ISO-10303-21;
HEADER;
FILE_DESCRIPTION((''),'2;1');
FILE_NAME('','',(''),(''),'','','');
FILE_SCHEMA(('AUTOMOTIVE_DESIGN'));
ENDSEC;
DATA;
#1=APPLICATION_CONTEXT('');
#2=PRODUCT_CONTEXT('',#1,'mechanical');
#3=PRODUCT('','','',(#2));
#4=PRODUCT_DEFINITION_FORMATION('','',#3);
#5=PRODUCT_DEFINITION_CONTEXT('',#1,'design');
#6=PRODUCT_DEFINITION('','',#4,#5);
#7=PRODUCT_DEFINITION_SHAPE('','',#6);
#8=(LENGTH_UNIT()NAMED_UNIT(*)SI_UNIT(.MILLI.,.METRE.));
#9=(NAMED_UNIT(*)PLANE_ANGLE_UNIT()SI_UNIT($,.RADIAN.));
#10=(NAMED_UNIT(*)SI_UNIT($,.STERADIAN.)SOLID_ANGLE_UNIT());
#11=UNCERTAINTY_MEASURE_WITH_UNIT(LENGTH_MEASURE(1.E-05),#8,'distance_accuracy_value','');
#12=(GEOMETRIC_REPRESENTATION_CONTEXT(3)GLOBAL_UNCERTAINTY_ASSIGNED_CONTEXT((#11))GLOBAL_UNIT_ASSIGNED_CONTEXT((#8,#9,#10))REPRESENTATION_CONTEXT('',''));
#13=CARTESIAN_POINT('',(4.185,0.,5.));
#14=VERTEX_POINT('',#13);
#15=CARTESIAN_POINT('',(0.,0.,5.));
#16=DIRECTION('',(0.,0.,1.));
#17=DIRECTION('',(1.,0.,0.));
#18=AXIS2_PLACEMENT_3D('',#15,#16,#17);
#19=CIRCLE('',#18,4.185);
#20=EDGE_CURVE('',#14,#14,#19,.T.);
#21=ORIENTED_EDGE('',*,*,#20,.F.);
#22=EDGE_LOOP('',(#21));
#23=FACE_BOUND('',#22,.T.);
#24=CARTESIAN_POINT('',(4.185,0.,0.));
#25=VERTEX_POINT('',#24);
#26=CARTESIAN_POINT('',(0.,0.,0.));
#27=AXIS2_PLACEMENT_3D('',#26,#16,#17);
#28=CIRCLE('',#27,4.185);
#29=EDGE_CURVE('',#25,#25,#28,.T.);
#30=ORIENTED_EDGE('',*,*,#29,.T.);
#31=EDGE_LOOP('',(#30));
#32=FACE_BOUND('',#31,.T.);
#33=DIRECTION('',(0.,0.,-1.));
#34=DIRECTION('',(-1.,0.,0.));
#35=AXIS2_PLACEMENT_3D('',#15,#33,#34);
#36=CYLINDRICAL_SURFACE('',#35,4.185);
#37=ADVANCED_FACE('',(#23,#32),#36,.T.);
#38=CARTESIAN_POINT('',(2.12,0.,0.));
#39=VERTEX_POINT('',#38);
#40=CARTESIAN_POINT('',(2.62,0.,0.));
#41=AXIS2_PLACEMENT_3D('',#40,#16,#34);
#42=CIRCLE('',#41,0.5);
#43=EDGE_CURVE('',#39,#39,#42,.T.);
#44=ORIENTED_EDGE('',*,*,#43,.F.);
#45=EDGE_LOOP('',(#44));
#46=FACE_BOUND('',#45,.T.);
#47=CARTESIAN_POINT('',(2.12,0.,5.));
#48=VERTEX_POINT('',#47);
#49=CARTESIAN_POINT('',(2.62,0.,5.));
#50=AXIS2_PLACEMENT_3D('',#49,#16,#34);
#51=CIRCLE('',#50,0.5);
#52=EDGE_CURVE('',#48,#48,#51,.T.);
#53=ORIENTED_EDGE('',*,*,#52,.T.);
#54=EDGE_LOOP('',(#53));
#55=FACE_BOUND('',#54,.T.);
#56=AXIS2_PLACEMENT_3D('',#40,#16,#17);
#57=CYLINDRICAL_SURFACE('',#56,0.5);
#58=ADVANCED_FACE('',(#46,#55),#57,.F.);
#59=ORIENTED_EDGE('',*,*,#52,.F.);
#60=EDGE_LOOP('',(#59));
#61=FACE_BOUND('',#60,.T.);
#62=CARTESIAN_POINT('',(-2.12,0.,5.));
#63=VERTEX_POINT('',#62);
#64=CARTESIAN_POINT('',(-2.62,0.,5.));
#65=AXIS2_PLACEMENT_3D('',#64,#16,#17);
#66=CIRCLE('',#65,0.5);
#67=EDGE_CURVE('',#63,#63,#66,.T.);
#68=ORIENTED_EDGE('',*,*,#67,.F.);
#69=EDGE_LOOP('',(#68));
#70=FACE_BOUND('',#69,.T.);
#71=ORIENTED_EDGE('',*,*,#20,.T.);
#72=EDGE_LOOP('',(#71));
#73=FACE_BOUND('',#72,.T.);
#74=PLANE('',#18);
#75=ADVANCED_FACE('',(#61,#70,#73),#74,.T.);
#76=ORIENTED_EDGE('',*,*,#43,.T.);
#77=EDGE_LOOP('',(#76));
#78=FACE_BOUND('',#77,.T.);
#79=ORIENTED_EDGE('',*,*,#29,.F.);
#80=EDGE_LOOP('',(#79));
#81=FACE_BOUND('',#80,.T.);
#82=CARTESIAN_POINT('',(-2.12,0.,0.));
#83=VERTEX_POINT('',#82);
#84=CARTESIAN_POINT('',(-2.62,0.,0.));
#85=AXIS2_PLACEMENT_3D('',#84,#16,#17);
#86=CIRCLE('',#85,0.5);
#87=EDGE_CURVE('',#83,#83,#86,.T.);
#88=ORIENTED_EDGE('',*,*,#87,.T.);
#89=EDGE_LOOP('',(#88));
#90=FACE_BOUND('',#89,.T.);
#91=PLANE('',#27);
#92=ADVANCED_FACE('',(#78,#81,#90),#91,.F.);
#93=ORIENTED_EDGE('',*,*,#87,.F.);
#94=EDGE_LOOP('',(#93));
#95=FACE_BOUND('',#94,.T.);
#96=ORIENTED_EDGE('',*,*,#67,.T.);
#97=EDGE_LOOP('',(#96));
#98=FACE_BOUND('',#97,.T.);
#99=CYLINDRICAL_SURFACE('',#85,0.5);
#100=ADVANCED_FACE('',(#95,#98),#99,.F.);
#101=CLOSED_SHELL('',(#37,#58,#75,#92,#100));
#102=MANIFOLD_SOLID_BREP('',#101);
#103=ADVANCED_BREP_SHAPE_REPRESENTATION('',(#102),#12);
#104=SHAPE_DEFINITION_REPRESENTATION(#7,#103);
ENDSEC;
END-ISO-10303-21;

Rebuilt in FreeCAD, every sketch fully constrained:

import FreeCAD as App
import Part
import Sketcher

V = App.Vector

doc = App.newDocument("Part")
params = doc.addObject("Spreadsheet::Sheet", "Params")
for row, (alias, value) in enumerate([
    ("sketch1_diameter", "8.37 mm"),
    ("pad1_length", "5 mm"),
    ("sketch2_diameter", "1 mm"),
], start=1):
    params.set(f"A{row}", alias)
    params.set(f"B{row}", "=" + value)
    params.setAlias(f"B{row}", alias)

body = doc.addObject("PartDesign::Body", "Body")

sketch1 = doc.addObject("Sketcher::SketchObject", "Sketch")
body.addObject(sketch1)
sketch1.AttachmentSupport = (doc.XY_Plane, [""])
sketch1.MapMode = "FlatFace"
sketch1.addGeometry(Part.Circle(V(0, 0, 0), V(0, 0, 1), 4.2), False)
sketch1.addConstraint(Sketcher.Constraint("Coincident", 0, 3, -1, 1))
sketch1.addConstraint(Sketcher.Constraint("Diameter", 0, 8.37))
sketch1.setExpression("Constraints[1]", "Params.sketch1_diameter")
pad1 = doc.addObject("PartDesign::Pad", "Pad")
body.addObject(pad1)
pad1.Profile = sketch1
pad1.setExpression("Length", "Params.pad1_length")

sketch2 = doc.addObject("Sketcher::SketchObject", "Sketch001")
body.addObject(sketch2)
sketch2.AttachmentSupport = (doc.XY_Plane, [""])
sketch2.MapMode = "FlatFace"
sketch2.AttachmentOffset = App.Placement(V(0, 0, 5), App.Rotation())
sketch2.addGeometry(Part.Circle(V(-2.6, 0, 0), V(0, 0, 1), 0.5), False)
sketch2.addGeometry(Part.Circle(V(2.6, 0, 0), V(0, 0, 1), 0.5), False)
sketch2.addConstraint(Sketcher.Constraint("Equal", 0, 1))
sketch2.addConstraint(Sketcher.Constraint("Symmetric", 0, 3, 1, 3, -1, 1))
sketch2.addConstraint(Sketcher.Constraint("PointOnObject", 0, 3, -1))
sketch2.addConstraint(Sketcher.Constraint("Diameter", 0, 1.0))
sketch2.addConstraint(Sketcher.Constraint("DistanceX", 0, 3, -1, 1, 2.62))
sketch2.setExpression("Constraints[3]", "Params.sketch2_diameter")
pocket1 = doc.addObject("PartDesign::Pocket", "Pocket")
body.addObject(pocket1)
pocket1.Profile = sketch2
pocket1.Type = "ThroughAll"

doc.recompute()
